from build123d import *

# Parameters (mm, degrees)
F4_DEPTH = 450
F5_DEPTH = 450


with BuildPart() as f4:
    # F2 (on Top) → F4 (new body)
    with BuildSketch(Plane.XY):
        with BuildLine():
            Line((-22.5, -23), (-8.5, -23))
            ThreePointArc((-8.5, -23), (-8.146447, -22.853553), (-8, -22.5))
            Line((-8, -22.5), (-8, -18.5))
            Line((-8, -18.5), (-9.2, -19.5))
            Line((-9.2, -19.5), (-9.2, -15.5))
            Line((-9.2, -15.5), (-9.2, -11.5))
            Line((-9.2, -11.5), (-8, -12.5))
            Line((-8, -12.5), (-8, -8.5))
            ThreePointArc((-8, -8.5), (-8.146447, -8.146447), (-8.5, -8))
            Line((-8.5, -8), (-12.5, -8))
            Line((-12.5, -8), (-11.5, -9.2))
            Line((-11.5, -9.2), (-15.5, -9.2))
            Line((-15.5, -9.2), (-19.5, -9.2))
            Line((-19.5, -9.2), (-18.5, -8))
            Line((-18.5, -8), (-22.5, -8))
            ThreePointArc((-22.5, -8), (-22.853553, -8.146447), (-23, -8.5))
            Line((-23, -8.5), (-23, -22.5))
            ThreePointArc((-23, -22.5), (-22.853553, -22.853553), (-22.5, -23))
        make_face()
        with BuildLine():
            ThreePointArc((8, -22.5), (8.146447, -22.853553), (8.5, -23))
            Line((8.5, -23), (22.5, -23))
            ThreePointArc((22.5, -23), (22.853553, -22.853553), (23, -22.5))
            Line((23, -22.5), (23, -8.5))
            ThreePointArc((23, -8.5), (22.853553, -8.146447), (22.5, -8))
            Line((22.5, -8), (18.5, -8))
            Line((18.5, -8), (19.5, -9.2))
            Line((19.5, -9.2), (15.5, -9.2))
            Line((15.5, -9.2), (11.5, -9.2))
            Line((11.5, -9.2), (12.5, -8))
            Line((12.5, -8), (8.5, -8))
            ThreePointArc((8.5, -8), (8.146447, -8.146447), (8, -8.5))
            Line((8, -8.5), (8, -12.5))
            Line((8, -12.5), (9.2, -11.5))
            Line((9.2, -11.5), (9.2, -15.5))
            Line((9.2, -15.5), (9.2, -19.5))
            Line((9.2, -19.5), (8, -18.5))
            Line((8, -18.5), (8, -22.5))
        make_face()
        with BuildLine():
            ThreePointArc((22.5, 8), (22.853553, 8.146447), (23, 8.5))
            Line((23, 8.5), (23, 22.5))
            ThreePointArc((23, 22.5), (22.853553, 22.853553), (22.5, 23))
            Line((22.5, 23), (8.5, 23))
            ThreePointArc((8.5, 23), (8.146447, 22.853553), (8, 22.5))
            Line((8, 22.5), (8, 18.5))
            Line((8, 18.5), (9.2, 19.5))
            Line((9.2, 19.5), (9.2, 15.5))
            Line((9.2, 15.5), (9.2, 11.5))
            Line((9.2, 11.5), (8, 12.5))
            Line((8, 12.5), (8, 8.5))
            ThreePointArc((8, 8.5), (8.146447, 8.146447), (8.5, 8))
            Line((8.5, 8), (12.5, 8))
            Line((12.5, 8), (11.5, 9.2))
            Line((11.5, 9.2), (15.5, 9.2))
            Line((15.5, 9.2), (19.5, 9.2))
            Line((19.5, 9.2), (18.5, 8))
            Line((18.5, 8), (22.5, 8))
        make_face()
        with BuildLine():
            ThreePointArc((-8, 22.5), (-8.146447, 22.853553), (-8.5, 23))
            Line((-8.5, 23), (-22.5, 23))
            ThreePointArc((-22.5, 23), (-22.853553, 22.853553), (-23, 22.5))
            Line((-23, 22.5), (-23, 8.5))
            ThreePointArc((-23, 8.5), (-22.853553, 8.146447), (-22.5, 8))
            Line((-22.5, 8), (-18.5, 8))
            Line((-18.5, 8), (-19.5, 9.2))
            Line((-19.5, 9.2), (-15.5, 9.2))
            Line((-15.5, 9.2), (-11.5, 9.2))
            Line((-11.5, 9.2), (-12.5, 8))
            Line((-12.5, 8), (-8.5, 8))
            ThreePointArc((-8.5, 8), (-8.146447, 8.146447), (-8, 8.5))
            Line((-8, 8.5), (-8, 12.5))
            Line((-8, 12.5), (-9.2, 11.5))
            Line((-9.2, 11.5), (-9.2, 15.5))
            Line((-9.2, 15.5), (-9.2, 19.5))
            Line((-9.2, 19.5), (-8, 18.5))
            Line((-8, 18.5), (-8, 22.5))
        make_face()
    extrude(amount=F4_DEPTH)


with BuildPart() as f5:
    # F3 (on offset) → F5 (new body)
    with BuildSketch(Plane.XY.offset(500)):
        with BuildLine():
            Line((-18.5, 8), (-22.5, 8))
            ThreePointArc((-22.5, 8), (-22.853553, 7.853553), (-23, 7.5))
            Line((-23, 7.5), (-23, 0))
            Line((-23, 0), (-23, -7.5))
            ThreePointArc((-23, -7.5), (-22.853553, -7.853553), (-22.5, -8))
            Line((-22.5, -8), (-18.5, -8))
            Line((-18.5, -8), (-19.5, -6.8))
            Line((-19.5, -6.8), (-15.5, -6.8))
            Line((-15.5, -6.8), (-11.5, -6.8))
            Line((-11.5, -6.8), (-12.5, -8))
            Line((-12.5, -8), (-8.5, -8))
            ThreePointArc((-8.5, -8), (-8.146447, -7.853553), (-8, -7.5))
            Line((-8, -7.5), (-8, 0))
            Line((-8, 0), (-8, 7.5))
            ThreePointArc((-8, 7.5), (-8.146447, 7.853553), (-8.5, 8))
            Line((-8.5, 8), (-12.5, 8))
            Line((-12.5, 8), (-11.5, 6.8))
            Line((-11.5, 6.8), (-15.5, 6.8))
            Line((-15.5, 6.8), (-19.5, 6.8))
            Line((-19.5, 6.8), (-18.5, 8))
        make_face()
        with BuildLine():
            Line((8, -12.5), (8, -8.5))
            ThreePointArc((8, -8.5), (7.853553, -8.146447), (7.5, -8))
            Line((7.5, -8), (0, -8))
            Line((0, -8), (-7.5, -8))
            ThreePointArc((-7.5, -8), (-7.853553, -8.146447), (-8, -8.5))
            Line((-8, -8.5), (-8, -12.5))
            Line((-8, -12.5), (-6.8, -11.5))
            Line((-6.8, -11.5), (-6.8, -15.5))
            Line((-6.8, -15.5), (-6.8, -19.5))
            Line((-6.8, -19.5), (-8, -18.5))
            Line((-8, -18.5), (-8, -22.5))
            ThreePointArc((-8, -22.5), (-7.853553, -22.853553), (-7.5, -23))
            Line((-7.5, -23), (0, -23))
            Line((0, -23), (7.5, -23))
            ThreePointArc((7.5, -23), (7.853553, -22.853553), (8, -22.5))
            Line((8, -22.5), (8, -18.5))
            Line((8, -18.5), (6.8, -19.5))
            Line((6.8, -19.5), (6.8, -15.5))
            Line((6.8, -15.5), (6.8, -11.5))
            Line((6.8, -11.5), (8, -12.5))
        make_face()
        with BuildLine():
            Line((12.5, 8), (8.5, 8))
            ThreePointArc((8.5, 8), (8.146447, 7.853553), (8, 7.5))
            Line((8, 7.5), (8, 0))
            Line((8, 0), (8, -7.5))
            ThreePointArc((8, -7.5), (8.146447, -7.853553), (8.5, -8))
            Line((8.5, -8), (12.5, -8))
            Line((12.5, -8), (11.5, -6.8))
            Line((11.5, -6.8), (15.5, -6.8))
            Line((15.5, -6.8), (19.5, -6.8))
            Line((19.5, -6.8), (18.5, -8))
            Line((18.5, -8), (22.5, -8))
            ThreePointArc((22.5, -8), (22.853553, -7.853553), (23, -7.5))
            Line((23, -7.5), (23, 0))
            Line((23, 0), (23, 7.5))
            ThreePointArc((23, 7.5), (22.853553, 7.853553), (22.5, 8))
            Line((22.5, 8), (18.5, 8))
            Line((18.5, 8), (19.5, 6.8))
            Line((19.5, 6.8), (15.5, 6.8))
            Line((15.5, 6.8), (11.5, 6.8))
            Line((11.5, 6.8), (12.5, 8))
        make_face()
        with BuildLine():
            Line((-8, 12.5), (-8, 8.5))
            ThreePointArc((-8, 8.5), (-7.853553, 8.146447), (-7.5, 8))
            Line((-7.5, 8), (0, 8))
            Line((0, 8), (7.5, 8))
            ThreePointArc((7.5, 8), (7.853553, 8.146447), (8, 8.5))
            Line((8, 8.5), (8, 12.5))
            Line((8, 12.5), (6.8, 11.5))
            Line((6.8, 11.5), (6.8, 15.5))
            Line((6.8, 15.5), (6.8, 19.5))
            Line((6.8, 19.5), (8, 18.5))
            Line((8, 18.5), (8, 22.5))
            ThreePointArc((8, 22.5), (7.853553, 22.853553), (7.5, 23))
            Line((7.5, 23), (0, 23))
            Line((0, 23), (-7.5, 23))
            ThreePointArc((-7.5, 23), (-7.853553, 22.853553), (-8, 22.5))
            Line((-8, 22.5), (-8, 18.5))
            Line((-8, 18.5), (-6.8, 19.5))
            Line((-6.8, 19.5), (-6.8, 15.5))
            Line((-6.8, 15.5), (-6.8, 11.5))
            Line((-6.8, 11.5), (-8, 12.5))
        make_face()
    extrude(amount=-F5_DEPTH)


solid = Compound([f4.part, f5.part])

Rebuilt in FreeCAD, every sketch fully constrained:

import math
import FreeCAD as App
import Part
import Sketcher

V = App.Vector
Q = App.Units.Quantity

doc = App.newDocument("Part")
body = doc.addObject("PartDesign::Body", "Body")
body.AllowCompound = True

sketch1 = doc.addObject("Sketcher::SketchObject", "Sketch")
body.addObject(sketch1)
sketch1.AttachmentSupport = (doc.XY_Plane, [""])
sketch1.MapMode = "FlatFace"
sketch1.addGeometry([
    Part.LineSegment(V(-22.5, -23, 0), V(-8.5, -23, 0)),
    Part.ArcOfCircle(Part.Circle(V(-8.5, -22.5, 0), V(0, 0, 1), 0.5), math.radians(-90), math.radians(0)),
    Part.LineSegment(V(-8, -22.5, 0), V(-8, -18.5, 0)),
    Part.LineSegment(V(-8, -18.5, 0), V(-9.2, -19.5, 0)),
    Part.LineSegment(V(-9.2, -19.5, 0), V(-9.2, -11.5, 0)),
    Part.LineSegment(V(-9.2, -11.5, 0), V(-8, -12.5, 0)),
    Part.LineSegment(V(-8, -12.5, 0), V(-8, -8.5, 0)),
    Part.ArcOfCircle(Part.Circle(V(-8.5, -8.5, 0), V(0, 0, 1), 0.5), math.radians(0), math.radians(90)),
    Part.LineSegment(V(-8.5, -8, 0), V(-12.5, -8, 0)),
    Part.LineSegment(V(-12.5, -8, 0), V(-11.5, -9.2, 0)),
    Part.LineSegment(V(-11.5, -9.2, 0), V(-19.5, -9.2, 0)),
    Part.LineSegment(V(-19.5, -9.2, 0), V(-18.5, -8, 0)),
    Part.LineSegment(V(-18.5, -8, 0), V(-22.5, -8, 0)),
    Part.ArcOfCircle(Part.Circle(V(-22.5, -8.5, 0), V(0, 0, 1), 0.5), math.radians(90), math.radians(180)),
    Part.LineSegment(V(-23, -8.5, 0), V(-23, -22.5, 0)),
    Part.ArcOfCircle(Part.Circle(V(-22.5, -22.5, 0), V(0, 0, 1), 0.5), math.radians(-180), math.radians(-90)),
    Part.ArcOfCircle(Part.Circle(V(8.5, -22.5, 0), V(0, 0, 1), 0.5), math.radians(-180), math.radians(-90)),
    Part.LineSegment(V(8.5, -23, 0), V(22.5, -23, 0)),
    Part.ArcOfCircle(Part.Circle(V(22.5, -22.5, 0), V(0, 0, 1), 0.5), math.radians(-90), math.radians(0)),
    Part.LineSegment(V(23, -22.5, 0), V(23, -8.5, 0)),
    Part.ArcOfCircle(Part.Circle(V(22.5, -8.5, 0), V(0, 0, 1), 0.5), math.radians(0), math.radians(90)),
    Part.LineSegment(V(22.5, -8, 0), V(18.5, -8, 0)),
    Part.LineSegment(V(18.5, -8, 0), V(19.5, -9.2, 0)),
    Part.LineSegment(V(19.5, -9.2, 0), V(11.5, -9.2, 0)),
    Part.LineSegment(V(11.5, -9.2, 0), V(12.5, -8, 0)),
    Part.LineSegment(V(12.5, -8, 0), V(8.5, -8, 0)),
    Part.ArcOfCircle(Part.Circle(V(8.5, -8.5, 0), V(0, 0, 1), 0.5), math.radians(90), math.radians(180)),
    Part.LineSegment(V(8, -8.5, 0), V(8, -12.5, 0)),
    Part.LineSegment(V(8, -12.5, 0), V(9.2, -11.5, 0)),
    Part.LineSegment(V(9.2, -11.5, 0), V(9.2, -19.5, 0)),
    Part.LineSegment(V(9.2, -19.5, 0), V(8, -18.5, 0)),
    Part.LineSegment(V(8, -18.5, 0), V(8, -22.5, 0)),
    Part.ArcOfCircle(Part.Circle(V(22.5, 8.5, 0), V(0, 0, 1), 0.5), math.radians(-90), math.radians(0)),
    Part.LineSegment(V(23, 8.5, 0), V(23, 22.5, 0)),
    Part.ArcOfCircle(Part.Circle(V(22.5, 22.5, 0), V(0, 0, 1), 0.5), math.radians(0), math.radians(90)),
    Part.LineSegment(V(22.5, 23, 0), V(8.5, 23, 0)),
    Part.ArcOfCircle(Part.Circle(V(8.5, 22.5, 0), V(0, 0, 1), 0.5), math.radians(90), math.radians(180)),
    Part.LineSegment(V(8, 22.5, 0), V(8, 18.5, 0)),
    Part.LineSegment(V(8, 18.5, 0), V(9.2, 19.5, 0)),
    Part.LineSegment(V(9.2, 19.5, 0), V(9.2, 11.5, 0)),
    Part.LineSegment(V(9.2, 11.5, 0), V(8, 12.5, 0)),
    Part.LineSegment(V(8, 12.5, 0), V(8, 8.5, 0)),
    Part.ArcOfCircle(Part.Circle(V(8.5, 8.5, 0), V(0, 0, 1), 0.5), math.radians(-180), math.radians(-90)),
    Part.LineSegment(V(8.5, 8, 0), V(12.5, 8, 0)),
    Part.LineSegment(V(12.5, 8, 0), V(11.5, 9.2, 0)),
    Part.LineSegment(V(11.5, 9.2, 0), V(19.5, 9.2, 0)),
    Part.LineSegment(V(19.5, 9.2, 0), V(18.5, 8, 0)),
    Part.LineSegment(V(18.5, 8, 0), V(22.5, 8, 0)),
    Part.ArcOfCircle(Part.Circle(V(-8.5, 22.5, 0), V(0, 0, 1), 0.5), math.radians(0), math.radians(90)),
    Part.LineSegment(V(-8.5, 23, 0), V(-22.5, 23, 0)),
    Part.ArcOfCircle(Part.Circle(V(-22.5, 22.5, 0), V(0, 0, 1), 0.5), math.radians(90), math.radians(180)),
    Part.LineSegment(V(-23, 22.5, 0), V(-23, 8.5, 0)),
    Part.ArcOfCircle(Part.Circle(V(-22.5, 8.5, 0), V(0, 0, 1), 0.5), math.radians(-180), math.radians(-90)),
    Part.LineSegment(V(-22.5, 8, 0), V(-18.5, 8, 0)),
    Part.LineSegment(V(-18.5, 8, 0), V(-19.5, 9.2, 0)),
    Part.LineSegment(V(-19.5, 9.2, 0), V(-11.5, 9.2, 0)),
    Part.LineSegment(V(-11.5, 9.2, 0), V(-12.5, 8, 0)),
    Part.LineSegment(V(-12.5, 8, 0), V(-8.5, 8, 0)),
    Part.ArcOfCircle(Part.Circle(V(-8.5, 8.5, 0), V(0, 0, 1), 0.5), math.radians(-90), math.radians(0)),
    Part.LineSegment(V(-8, 8.5, 0), V(-8, 12.5, 0)),
    Part.LineSegment(V(-8, 12.5, 0), V(-9.2, 11.5, 0)),
    Part.LineSegment(V(-9.2, 11.5, 0), V(-9.2, 19.5, 0)),
    Part.LineSegment(V(-9.2, 19.5, 0), V(-8, 18.5, 0)),
    Part.LineSegment(V(-8, 18.5, 0), V(-8, 22.5, 0)),
], False)
sketch1.addConstraint([
    Sketcher.Constraint("Coincident", 0, 2, 1, 1),
    Sketcher.Constraint("Coincident", 1, 2, 2, 1),
    Sketcher.Constraint("Coincident", 2, 2, 3, 1),
    Sketcher.Constraint("Coincident", 3, 2, 4, 1),
    Sketcher.Constraint("Coincident", 4, 2, 5, 1),
    Sketcher.Constraint("Coincident", 5, 2, 6, 1),
    Sketcher.Constraint("Coincident", 6, 2, 7, 1),
    Sketcher.Constraint("Coincident", 7, 2, 8, 1),
    Sketcher.Constraint("Coincident", 8, 2, 9, 1),
    Sketcher.Constraint("Coincident", 9, 2, 10, 1),
    Sketcher.Constraint("Coincident", 10, 2, 11, 1),
    Sketcher.Constraint("Coincident", 11, 2, 12, 1),
    Sketcher.Constraint("Coincident", 12, 2, 13, 1),
    Sketcher.Constraint("Coincident", 13, 2, 14, 1),
    Sketcher.Constraint("Coincident", 14, 2, 15, 1),
    Sketcher.Constraint("Coincident", 15, 2, 0, 1),
    Sketcher.Constraint("Coincident", 16, 2, 17, 1),
    Sketcher.Constraint("Coincident", 17, 2, 18, 1),
    Sketcher.Constraint("Coincident", 18, 2, 19, 1),
    Sketcher.Constraint("Coincident", 19, 2, 20, 1),
    Sketcher.Constraint("Coincident", 20, 2, 21, 1),
    Sketcher.Constraint("Coincident", 21, 2, 22, 1),
    Sketcher.Constraint("Coincident", 22, 2, 23, 1),
    Sketcher.Constraint("Coincident", 23, 2, 24, 1),
    Sketcher.Constraint("Coincident", 24, 2, 25, 1),
    Sketcher.Constraint("Coincident", 25, 2, 26, 1),
    Sketcher.Constraint("Coincident", 26, 2, 27, 1),
    Sketcher.Constraint("Coincident", 27, 2, 28, 1),
    Sketcher.Constraint("Coincident", 28, 2, 29, 1),
    Sketcher.Constraint("Coincident", 29, 2, 30, 1),
    Sketcher.Constraint("Coincident", 30, 2, 31, 1),
    Sketcher.Constraint("Coincident", 31, 2, 16, 1),
    Sketcher.Constraint("Coincident", 32, 2, 33, 1),
    Sketcher.Constraint("Coincident", 33, 2, 34, 1),
    Sketcher.Constraint("Coincident", 34, 2, 35, 1),
    Sketcher.Constraint("Coincident", 35, 2, 36, 1),
    Sketcher.Constraint("Coincident", 36, 2, 37, 1),
    Sketcher.Constraint("Coincident", 37, 2, 38, 1),
    Sketcher.Constraint("Coincident", 38, 2, 39, 1),
    Sketcher.Constraint("Coincident", 39, 2, 40, 1),
    Sketcher.Constraint("Coincident", 40, 2, 41, 1),
    Sketcher.Constraint("Coincident", 41, 2, 42, 1),
    Sketcher.Constraint("Coincident", 42, 2, 43, 1),
    Sketcher.Constraint("Coincident", 43, 2, 44, 1),
    Sketcher.Constraint("Coincident", 44, 2, 45, 1),
    Sketcher.Constraint("Coincident", 45, 2, 46, 1),
    Sketcher.Constraint("Coincident", 46, 2, 47, 1),
    Sketcher.Constraint("Coincident", 47, 2, 32, 1),
    Sketcher.Constraint("Coincident", 48, 2, 49, 1),
    Sketcher.Constraint("Coincident", 49, 2, 50, 1),
    Sketcher.Constraint("Coincident", 50, 2, 51, 1),
    Sketcher.Constraint("Coincident", 51, 2, 52, 1),
    Sketcher.Constraint("Coincident", 52, 2, 53, 1),
    Sketcher.Constraint("Coincident", 53, 2, 54, 1),
    Sketcher.Constraint("Coincident", 54, 2, 55, 1),
    Sketcher.Constraint("Coincident", 55, 2, 56, 1),
    Sketcher.Constraint("Coincident", 56, 2, 57, 1),
    Sketcher.Constraint("Coincident", 57, 2, 58, 1),
    Sketcher.Constraint("Coincident", 58, 2, 59, 1),
    Sketcher.Constraint("Coincident", 59, 2, 60, 1),
    Sketcher.Constraint("Coincident", 60, 2, 61, 1),
    Sketcher.Constraint("Coincident", 61, 2, 62, 1),
    Sketcher.Constraint("Coincident", 62, 2, 63, 1),
    Sketcher.Constraint("Coincident", 63, 2, 48, 1),
    Sketcher.Constraint("Horizontal", 0),
    Sketcher.Constraint("Vertical", 2),
    Sketcher.Constraint("Vertical", 4),
    Sketcher.Constraint("Vertical", 6),
    Sketcher.Constraint("Horizontal", 8),
    Sketcher.Constraint("Horizontal", 10),
    Sketcher.Constraint("Horizontal", 12),
    Sketcher.Constraint("Vertical", 14),
    Sketcher.Constraint("Horizontal", 17),
    Sketcher.Constraint("Vertical", 19),
    Sketcher.Constraint("Horizontal", 21),
    Sketcher.Constraint("Horizontal", 23),
    Sketcher.Constraint("Horizontal", 25),
    Sketcher.Constraint("Vertical", 27),
    Sketcher.Constraint("Vertical", 29),
    Sketcher.Constraint("Vertical", 31),
    Sketcher.Constraint("Vertical", 33),
    Sketcher.Constraint("Horizontal", 35),
    Sketcher.Constraint("Vertical", 37),
    Sketcher.Constraint("Vertical", 39),
    Sketcher.Constraint("Vertical", 41),
    Sketcher.Constraint("Horizontal", 43),
    Sketcher.Constraint("Horizontal", 45),
    Sketcher.Constraint("Horizontal", 47),
    Sketcher.Constraint("Horizontal", 49),
    Sketcher.Constraint("Vertical", 51),
    Sketcher.Constraint("Horizontal", 53),
    Sketcher.Constraint("Horizontal", 55),
    Sketcher.Constraint("Horizontal", 57),
    Sketcher.Constraint("Vertical", 59),
    Sketcher.Constraint("Vertical", 61),
    Sketcher.Constraint("Vertical", 63),
    Sketcher.Constraint("Equal", 1, 7),
    Sketcher.Constraint("Equal", 7, 13),
    Sketcher.Constraint("Equal", 13, 15),
    Sketcher.Constraint("Equal", 15, 16),
    Sketcher.Constraint("Equal", 16, 18),
    Sketcher.Constraint("Equal", 18, 20),
    Sketcher.Constraint("Equal", 20, 26),
    Sketcher.Constraint("Equal", 26, 32),
    Sketcher.Constraint("Equal", 32, 34),
    Sketcher.Constraint("Equal", 34, 36),
    Sketcher.Constraint("Equal", 36, 42),
    Sketcher.Constraint("Equal", 42, 48),
    Sketcher.Constraint("Equal", 48, 50),
    Sketcher.Constraint("Equal", 50, 52),
    Sketcher.Constraint("Equal", 52, 58),
    Sketcher.Constraint("Symmetric", 13, 3, 32, 3, -1, 1),
    Sketcher.Constraint("Symmetric", 1, 3, 36, 3, -1, 1),
    Sketcher.Constraint("Symmetric", 7, 3, 42, 3, -1, 1),
    Sketcher.Constraint("Symmetric", 16, 3, 48, 3, -1, 1),
    Sketcher.Constraint("Symmetric", 20, 3, 52, 3, -1, 1),
    Sketcher.Constraint("Symmetric", 26, 3, 58, 3, -1, 1),
    Sketcher.Constraint("Symmetric", 3, 2, 38, 2, -1, 1),
    Sketcher.Constraint("Symmetric", 9, 2, 44, 2, -1, 1),
    Sketcher.Constraint("Symmetric", 22, 2, 54, 2, -1, 1),
    Sketcher.Constraint("Symmetric", 28, 2, 60, 2, -1, 1),
    Sketcher.Constraint("Symmetric", 1, 3, 16, 3, -2),
    Sketcher.Constraint("Symmetric", 13, 3, 20, 3, -2),
    Sketcher.Constraint("Symmetric", 7, 3, 26, 3, -2),
    Sketcher.Constraint("Symmetric", 10, 2, 22, 2, -2),
    Sketcher.Constraint("Symmetric", 4, 2, 28, 2, -2),
    Sketcher.Constraint("Perpendicular", 3, 9),
    Sketcher.Constraint("Perpendicular", 5, 11),
    Sketcher.Constraint("Parallel", 9, 22),
    Sketcher.Constraint("Parallel", 11, 24),
    Sketcher.Constraint("Perpendicular", 22, 28),
    Sketcher.Constraint("Perpendicular", 24, 30),
    Sketcher.Constraint("Parallel", 28, 38),
    Sketcher.Constraint("Parallel", 30, 40),
    Sketcher.Constraint("Perpendicular", 38, 44),
    Sketcher.Constraint("Perpendicular", 40, 46),
    Sketcher.Constraint("Parallel", 44, 54),
    Sketcher.Constraint("Parallel", 46, 56),
    Sketcher.Constraint("Perpendicular", 54, 60),
    Sketcher.Constraint("Perpendicular", 56, 62),
    Sketcher.Constraint("Horizontal", 7, 3, 13, 3),
    Sketcher.Constraint("Horizontal", 18, 3, 1, 2),
    Sketcher.Constraint("Horizontal", 26, 3, 6, 2),
    Sketcher.Constraint("Horizontal", 6, 2, 13, 2),
    Sketcher.Constraint("Horizontal", 1, 2, 14, 2),
    Sketcher.Constraint("Horizontal", 14, 2, 18, 2),
    Sketcher.Constraint("Horizontal", 13, 2, 19, 2),
    Sketcher.Constraint("Horizontal", 19, 2, 26, 2),
    Sketcher.Constraint("Horizontal", 5, 2, 27, 2),
    Sketcher.Constraint("Horizontal", 3, 2, 29, 2),
    Sketcher.Constraint("Horizontal", 18, 2, 31, 2),
    Sketcher.Constraint("Horizontal", 58, 3, 32, 2),
    Sketcher.Constraint("Horizontal", 50, 3, 33, 2),
    Sketcher.Constraint("Horizontal", 33, 2, 36, 2),
    Sketcher.Constraint("Horizontal", 32, 2, 41, 2),
    Sketcher.Constraint("Horizontal", 36, 2, 50, 2),
    Sketcher.Constraint("Horizontal", 41, 2, 51, 2),
    Sketcher.Constraint("Horizontal", 51, 2, 58, 2),
    Sketcher.Constraint("Horizontal", 40, 2, 59, 2),
    Sketcher.Constraint("Horizontal", 38, 2, 61, 2),
    Sketcher.Constraint("Horizontal", 50, 2, 63, 2),
    Sketcher.Constraint("Vertical", 1, 3, 7, 3),
    Sketcher.Constraint("Vertical", 58, 3, 0, 2),
    Sketcher.Constraint("Vertical", 0, 2, 7, 2),
    Sketcher.Constraint("Vertical", 52, 3, 12, 2),
    Sketcher.Constraint("Vertical", 12, 2, 15, 2),
    Sketcher.Constraint("Vertical", 42, 3, 16, 2),
    Sketcher.Constraint("Vertical", 34, 3, 17, 2),
    Sketcher.Constraint("Vertical", 17, 2, 20, 2),
    Sketcher.Constraint("Vertical", 16, 2, 25, 2),
    Sketcher.Constraint("Vertical", 20, 2, 34, 2),
    Sketcher.Constraint("Vertical", 25, 2, 35, 2),
    Sketcher.Constraint("Vertical", 35, 2, 42, 2),
    Sketcher.Constraint("Vertical", 24, 2, 43, 2),
    Sketcher.Constraint("Vertical", 22, 2, 45, 2),
    Sketcher.Constraint("Vertical", 34, 2, 47, 2),
    Sketcher.Constraint("Vertical", 7, 2, 48, 2),
    Sketcher.Constraint("Vertical", 15, 2, 49, 2),
    Sketcher.Constraint("Vertical", 49, 2, 52, 2),
    Sketcher.Constraint("Vertical", 9, 2, 55, 2),
    Sketcher.Constraint("Vertical", 48, 2, 57, 2),
    Sketcher.Constraint("Equal", 8, 12),
    Sketcher.Constraint("Equal", 57, 2),
    Sketcher.Constraint("Equal", 55, 4),
    Sketcher.Constraint("Equal", 2, 6),
    Sketcher.Constraint("Equal", 49, 14),
    Sketcher.Constraint("Radius", 1, Q("0.500001 mm")),
    Sketcher.Constraint("DistanceX", 0, 1, 0, 2, Q("14 mm")),
    Sketcher.Constraint("DistanceX", 8, 2, 8, 1, Q("4 mm")),
    Sketcher.Constraint("DistanceX", 10, 2, 10, 1, Q("8 mm")),
    Sketcher.Constraint("DistanceY", 0, 2, -1, 1, Q("23 mm")),
    Sketcher.Constraint("DistanceX", 1, 2, -1, 1, Q("8 mm")),
    Sketcher.Constraint("DistanceX", 3, 2, -1, 1, Q("9.2 mm")),
])
pad1 = doc.addObject("PartDesign::Pad", "Pad")
body.addObject(pad1)
pad1.Profile = sketch1
pad1.Length = 450
body2 = doc.addObject("PartDesign::Body", "Body001")
body2.AllowCompound = True

sketch2 = doc.addObject("Sketcher::SketchObject", "Sketch001")
body2.addObject(sketch2)
sketch2.AttachmentSupport = (doc.getObject("XY_Plane001"), [""])
sketch2.MapMode = "FlatFace"
sketch2.AttachmentOffset = App.Placement(V(0, 0, 500), App.Rotation())
sketch2.addGeometry([
    Part.LineSegment(V(-18.5, 8, 0), V(-22.5, 8, 0)),
    Part.ArcOfCircle(Part.Circle(V(-22.5, 7.5, 0), V(0, 0, 1), 0.5), math.radians(90), math.radians(180)),
    Part.LineSegment(V(-23, 7.5, 0), V(-23, -7.5, 0)),
    Part.ArcOfCircle(Part.Circle(V(-22.5, -7.5, 0), V(0, 0, 1), 0.5), math.radians(-180), math.radians(-90)),
    Part.LineSegment(V(-22.5, -8, 0), V(-18.5, -8, 0)),
    Part.LineSegment(V(-18.5, -8, 0), V(-19.5, -6.8, 0)),
    Part.LineSegment(V(-19.5, -6.8, 0), V(-11.5, -6.8, 0)),
    Part.LineSegment(V(-11.5, -6.8, 0), V(-12.5, -8, 0)),
    Part.LineSegment(V(-12.5, -8, 0), V(-8.5, -8, 0)),
    Part.ArcOfCircle(Part.Circle(V(-8.5, -7.5, 0), V(0, 0, 1), 0.5), math.radians(-90), math.radians(0)),
    Part.LineSegment(V(-8, -7.5, 0), V(-8, 7.5, 0)),
    Part.ArcOfCircle(Part.Circle(V(-8.5, 7.5, 0), V(0, 0, 1), 0.5), math.radians(0), math.radians(90)),
    Part.LineSegment(V(-8.5, 8, 0), V(-12.5, 8, 0)),
    Part.LineSegment(V(-12.5, 8, 0), V(-11.5, 6.8, 0)),
    Part.LineSegment(V(-11.5, 6.8, 0), V(-19.5, 6.8, 0)),
    Part.LineSegment(V(-19.5, 6.8, 0), V(-18.5, 8, 0)),
    Part.LineSegment(V(8, -12.5, 0), V(8, -8.5, 0)),
    Part.ArcOfCircle(Part.Circle(V(7.5, -8.5, 0), V(0, 0, 1), 0.5), math.radians(0), math.radians(90)),
    Part.LineSegment(V(7.5, -8, 0), V(-7.5, -8, 0)),
    Part.ArcOfCircle(Part.Circle(V(-7.5, -8.5, 0), V(0, 0, 1), 0.5), math.radians(90), math.radians(180)),
    Part.LineSegment(V(-8, -8.5, 0), V(-8, -12.5, 0)),
    Part.LineSegment(V(-8, -12.5, 0), V(-6.8, -11.5, 0)),
    Part.LineSegment(V(-6.8, -11.5, 0), V(-6.8, -19.5, 0)),
    Part.LineSegment(V(-6.8, -19.5, 0), V(-8, -18.5, 0)),
    Part.LineSegment(V(-8, -18.5, 0), V(-8, -22.5, 0)),
    Part.ArcOfCircle(Part.Circle(V(-7.5, -22.5, 0), V(0, 0, 1), 0.5), math.radians(-180), math.radians(-90)),
    Part.LineSegment(V(-7.5, -23, 0), V(7.5, -23, 0)),
    Part.ArcOfCircle(Part.Circle(V(7.5, -22.5, 0), V(0, 0, 1), 0.5), math.radians(-90), math.radians(0)),
    Part.LineSegment(V(8, -22.5, 0), V(8, -18.5, 0)),
    Part.LineSegment(V(8, -18.5, 0), V(6.8, -19.5, 0)),
    Part.LineSegment(V(6.8, -19.5, 0), V(6.8, -11.5, 0)),
    Part.LineSegment(V(6.8, -11.5, 0), V(8, -12.5, 0)),
    Part.LineSegment(V(12.5, 8, 0), V(8.5, 8, 0)),
    Part.ArcOfCircle(Part.Circle(V(8.5, 7.5, 0), V(0, 0, 1), 0.5), math.radians(90), math.radians(180)),
    Part.LineSegment(V(8, 7.5, 0), V(8, -7.5, 0)),
    Part.ArcOfCircle(Part.Circle(V(8.5, -7.5, 0), V(0, 0, 1), 0.5), math.radians(-180), math.radians(-90)),
    Part.LineSegment(V(8.5, -8, 0), V(12.5, -8, 0)),
    Part.LineSegment(V(12.5, -8, 0), V(11.5, -6.8, 0)),
    Part.LineSegment(V(11.5, -6.8, 0), V(19.5, -6.8, 0)),
    Part.LineSegment(V(19.5, -6.8, 0), V(18.5, -8, 0)),
    Part.LineSegment(V(18.5, -8, 0), V(22.5, -8, 0)),
    Part.ArcOfCircle(Part.Circle(V(22.5, -7.5, 0), V(0, 0, 1), 0.5), math.radians(-90), math.radians(0)),
    Part.LineSegment(V(23, -7.5, 0), V(23, 7.5, 0)),
    Part.ArcOfCircle(Part.Circle(V(22.5, 7.5, 0), V(0, 0, 1), 0.5), math.radians(0), math.radians(90)),
    Part.LineSegment(V(22.5, 8, 0), V(18.5, 8, 0)),
    Part.LineSegment(V(18.5, 8, 0), V(19.5, 6.8, 0)),
    Part.LineSegment(V(19.5, 6.8, 0), V(11.5, 6.8, 0)),
    Part.LineSegment(V(11.5, 6.8, 0), V(12.5, 8, 0)),
    Part.LineSegment(V(-8, 12.5, 0), V(-8, 8.5, 0)),
    Part.ArcOfCircle(Part.Circle(V(-7.5, 8.5, 0), V(0, 0, 1), 0.5), math.radians(-180), math.radians(-90)),
    Part.LineSegment(V(-7.5, 8, 0), V(7.5, 8, 0)),
    Part.ArcOfCircle(Part.Circle(V(7.5, 8.5, 0), V(0, 0, 1), 0.5), math.radians(-90), math.radians(0)),
    Part.LineSegment(V(8, 8.5, 0), V(8, 12.5, 0)),
    Part.LineSegment(V(8, 12.5, 0), V(6.8, 11.5, 0)),
    Part.LineSegment(V(6.8, 11.5, 0), V(6.8, 19.5, 0)),
    Part.LineSegment(V(6.8, 19.5, 0), V(8, 18.5, 0)),
    Part.LineSegment(V(8, 18.5, 0), V(8, 22.5, 0)),
    Part.ArcOfCircle(Part.Circle(V(7.5, 22.5, 0), V(0, 0, 1), 0.5), math.radians(0), math.radians(90)),
    Part.LineSegment(V(7.5, 23, 0), V(-7.5, 23, 0)),
    Part.ArcOfCircle(Part.Circle(V(-7.5, 22.5, 0), V(0, 0, 1), 0.5), math.radians(90), math.radians(180)),
    Part.LineSegment(V(-8, 22.5, 0), V(-8, 18.5, 0)),
    Part.LineSegment(V(-8, 18.5, 0), V(-6.8, 19.5, 0)),
    Part.LineSegment(V(-6.8, 19.5, 0), V(-6.8, 11.5, 0)),
    Part.LineSegment(V(-6.8, 11.5, 0), V(-8, 12.5, 0)),
], False)
sketch2.addConstraint([
    Sketcher.Constraint("Coincident", 0, 2, 1, 1),
    Sketcher.Constraint("Coincident", 1, 2, 2, 1),
    Sketcher.Constraint("Coincident", 2, 2, 3, 1),
    Sketcher.Constraint("Coincident", 3, 2, 4, 1),
    Sketcher.Constraint("Coincident", 4, 2, 5, 1),
    Sketcher.Constraint("Coincident", 5, 2, 6, 1),
    Sketcher.Constraint("Coincident", 6, 2, 7, 1),
    Sketcher.Constraint("Coincident", 7, 2, 8, 1),
    Sketcher.Constraint("Coincident", 8, 2, 9, 1),
    Sketcher.Constraint("Coincident", 9, 2, 10, 1),
    Sketcher.Constraint("Coincident", 10, 2, 11, 1),
    Sketcher.Constraint("Coincident", 11, 2, 12, 1),
    Sketcher.Constraint("Coincident", 12, 2, 13, 1),
    Sketcher.Constraint("Coincident", 13, 2, 14, 1),
    Sketcher.Constraint("Coincident", 14, 2, 15, 1),
    Sketcher.Constraint("Coincident", 15, 2, 0, 1),
    Sketcher.Constraint("Coincident", 16, 2, 17, 1),
    Sketcher.Constraint("Coincident", 17, 2, 18, 1),
    Sketcher.Constraint("Coincident", 18, 2, 19, 1),
    Sketcher.Constraint("Coincident", 19, 2, 20, 1),
    Sketcher.Constraint("Coincident", 20, 2, 21, 1),
    Sketcher.Constraint("Coincident", 21, 2, 22, 1),
    Sketcher.Constraint("Coincident", 22, 2, 23, 1),
    Sketcher.Constraint("Coincident", 23, 2, 24, 1),
    Sketcher.Constraint("Coincident", 24, 2, 25, 1),
    Sketcher.Constraint("Coincident", 25, 2, 26, 1),
    Sketcher.Constraint("Coincident", 26, 2, 27, 1),
    Sketcher.Constraint("Coincident", 27, 2, 28, 1),
    Sketcher.Constraint("Coincident", 28, 2, 29, 1),
    Sketcher.Constraint("Coincident", 29, 2, 30, 1),
    Sketcher.Constraint("Coincident", 30, 2, 31, 1),
    Sketcher.Constraint("Coincident", 31, 2, 16, 1),
    Sketcher.Constraint("Coincident", 32, 2, 33, 1),
    Sketcher.Constraint("Coincident", 33, 2, 34, 1),
    Sketcher.Constraint("Coincident", 34, 2, 35, 1),
    Sketcher.Constraint("Coincident", 35, 2, 36, 1),
    Sketcher.Constraint("Coincident", 36, 2, 37, 1),
    Sketcher.Constraint("Coincident", 37, 2, 38, 1),
    Sketcher.Constraint("Coincident", 38, 2, 39, 1),
    Sketcher.Constraint("Coincident", 39, 2, 40, 1),
    Sketcher.Constraint("Coincident", 40, 2, 41, 1),
    Sketcher.Constraint("Coincident", 41, 2, 42, 1),
    Sketcher.Constraint("Coincident", 42, 2, 43, 1),
    Sketcher.Constraint("Coincident", 43, 2, 44, 1),
    Sketcher.Constraint("Coincident", 44, 2, 45, 1),
    Sketcher.Constraint("Coincident", 45, 2, 46, 1),
    Sketcher.Constraint("Coincident", 46, 2, 47, 1),
    Sketcher.Constraint("Coincident", 47, 2, 32, 1),
    Sketcher.Constraint("Coincident", 48, 2, 49, 1),
    Sketcher.Constraint("Coincident", 49, 2, 50, 1),
    Sketcher.Constraint("Coincident", 50, 2, 51, 1),
    Sketcher.Constraint("Coincident", 51, 2, 52, 1),
    Sketcher.Constraint("Coincident", 52, 2, 53, 1),
    Sketcher.Constraint("Coincident", 53, 2, 54, 1),
    Sketcher.Constraint("Coincident", 54, 2, 55, 1),
    Sketcher.Constraint("Coincident", 55, 2, 56, 1),
    Sketcher.Constraint("Coincident", 56, 2, 57, 1),
    Sketcher.Constraint("Coincident", 57, 2, 58, 1),
    Sketcher.Constraint("Coincident", 58, 2, 59, 1),
    Sketcher.Constraint("Coincident", 59, 2, 60, 1),
    Sketcher.Constraint("Coincident", 60, 2, 61, 1),
    Sketcher.Constraint("Coincident", 61, 2, 62, 1),
    Sketcher.Constraint("Coincident", 62, 2, 63, 1),
    Sketcher.Constraint("Coincident", 63, 2, 48, 1),
    Sketcher.Constraint("Horizontal", 0),
    Sketcher.Constraint("Vertical", 2),
    Sketcher.Constraint("Horizontal", 4),
    Sketcher.Constraint("Horizontal", 6),
    Sketcher.Constraint("Horizontal", 8),
    Sketcher.Constraint("Vertical", 10),
    Sketcher.Constraint("Horizontal", 12),
    Sketcher.Constraint("Horizontal", 14),
    Sketcher.Constraint("Vertical", 16),
    Sketcher.Constraint("Horizontal", 18),
    Sketcher.Constraint("Vertical", 20),
    Sketcher.Constraint("Vertical", 22),
    Sketcher.Constraint("Vertical", 24),
    Sketcher.Constraint("Horizontal", 26),
    Sketcher.Constraint("Vertical", 28),
    Sketcher.Constraint("Vertical", 30),
    Sketcher.Constraint("Horizontal", 32),
    Sketcher.Constraint("Vertical", 34),
    Sketcher.Constraint("Horizontal", 36),
    Sketcher.Constraint("Horizontal", 38),
    Sketcher.Constraint("Horizontal", 40),
    Sketcher.Constraint("Vertical", 42),
    Sketcher.Constraint("Horizontal", 44),
    Sketcher.Constraint("Horizontal", 46),
    Sketcher.Constraint("Vertical", 48),
    Sketcher.Constraint("Horizontal", 50),
    Sketcher.Constraint("Vertical", 52),
    Sketcher.Constraint("Vertical", 54),
    Sketcher.Constraint("Vertical", 56),
    Sketcher.Constraint("Horizontal", 58),
    Sketcher.Constraint("Vertical", 60),
    Sketcher.Constraint("Vertical", 62),
    Sketcher.Constraint("Equal", 1, 3),
    Sketcher.Constraint("Equal", 3, 9),
    Sketcher.Constraint("Equal", 9, 11),
    Sketcher.Constraint("Equal", 11, 17),
    Sketcher.Constraint("Equal", 17, 19),
    Sketcher.Constraint("Equal", 19, 25),
    Sketcher.Constraint("Equal", 25, 27),
    Sketcher.Constraint("Equal", 27, 33),
    Sketcher.Constraint("Equal", 33, 35),
    Sketcher.Constraint("Equal", 35, 41),
    Sketcher.Constraint("Equal", 41, 43),
    Sketcher.Constraint("Equal", 43, 49),
    Sketcher.Constraint("Equal", 49, 51),
    Sketcher.Constraint("Equal", 51, 57),
    Sketcher.Constraint("Equal", 57, 59),
    Sketcher.Constraint("Symmetric", 9, 3, 33, 3, -1, 1),
    Sketcher.Constraint("Symmetric", 1, 3, 41, 3, -1, 1),
    Sketcher.Constraint("Symmetric", 17, 3, 49, 3, -1, 1),
    Sketcher.Constraint("Symmetric", 25, 3, 57, 3, -1, 1),
    Sketcher.Constraint("Symmetric", 11, 2, 35, 2, -1, 1),
    Sketcher.Constraint("Symmetric", 13, 2, 37, 2, -1, 1),
    Sketcher.Constraint("Symmetric", 3, 2, 43, 2, -1, 1),
    Sketcher.Constraint("Symmetric", 5, 2, 45, 2, -1, 1),
    Sketcher.Constraint("Symmetric", 19, 2, 51, 2, -1, 1),
    Sketcher.Constraint("Symmetric", 21, 2, 53, 2, -1, 1),
    Sketcher.Constraint("Symmetric", 27, 2, 59, 2, -1, 1),
    Sketcher.Constraint("Symmetric", 29, 2, 61, 2, -1, 1),
    Sketcher.Constraint("Symmetric", 16, 2, 19, 2, -2),
    Sketcher.Constraint("Symmetric", 24, 2, 27, 2, -2),
    Sketcher.Constraint("Symmetric", 22, 2, 29, 2, -2),
    Sketcher.Constraint("Symmetric", 11, 2, 32, 2, -2),
    Sketcher.Constraint("Symmetric", 6, 2, 37, 2, -2),
    Sketcher.Constraint("Symmetric", 4, 2, 39, 2, -2),
    Sketcher.Constraint("Parallel", 5, 13),
    Sketcher.Constraint("Parallel", 7, 15),
    Sketcher.Constraint("Perpendicular", 13, 21),
    Sketcher.Constraint("Perpendicular", 15, 23),
    Sketcher.Constraint("Parallel", 21, 29),
    Sketcher.Constraint("Parallel", 23, 31),
    Sketcher.Constraint("Perpendicular", 29, 37),
    Sketcher.Constraint("Perpendicular", 31, 39),
    Sketcher.Constraint("Parallel", 37, 45),
    Sketcher.Constraint("Parallel", 39, 47),
    Sketcher.Constraint("Perpendicular", 45, 53),
    Sketcher.Constraint("Perpendicular", 47, 55),
    Sketcher.Constraint("Parallel", 53, 61),
    Sketcher.Constraint("Parallel", 55, 63),
    Sketcher.Constraint("Horizontal", 3, 3, 9, 3),
    Sketcher.Constraint("Horizontal", 43, 3, 1, 2),
    Sketcher.Constraint("Horizontal", 41, 3, 2, 2),
    Sketcher.Constraint("Horizontal", 2, 2, 9, 2),
    Sketcher.Constraint("Horizontal", 1, 2, 10, 2),
    Sketcher.Constraint("Horizontal", 19, 3, 16, 2),
    Sketcher.Constraint("Horizontal", 8, 2, 17, 2),
    Sketcher.Constraint("Horizontal", 27, 3, 24, 2),
    Sketcher.Constraint("Horizontal", 23, 2, 28, 2),
    Sketcher.Constraint("Horizontal", 21, 2, 30, 2),
    Sketcher.Constraint("Horizontal", 10, 2, 33, 2),
    Sketcher.Constraint("Horizontal", 9, 2, 34, 2),
    Sketcher.Constraint("Horizontal", 34, 2, 41, 2),
    Sketcher.Constraint("Horizontal", 33, 2, 42, 2),
    Sketcher.Constraint("Horizontal", 51, 3, 48, 2),
    Sketcher.Constraint("Horizontal", 59, 3, 56, 2),
    Sketcher.Constraint("Horizontal", 55, 2, 60, 2),
    Sketcher.Constraint("Horizontal", 53, 2, 62, 2),
    Sketcher.Constraint("Vertical", 19, 3, 25, 3),
    Sketcher.Constraint("Vertical", 3, 3, 0, 2),
    Sketcher.Constraint("Vertical", 0, 2, 3, 2),
    Sketcher.Constraint("Vertical", 11, 3, 8, 2),
    Sketcher.Constraint("Vertical", 8, 2, 11, 2),
    Sketcher.Constraint("Vertical", 5, 2, 14, 2),
    Sketcher.Constraint("Vertical", 57, 3, 17, 2),
    Sketcher.Constraint("Vertical", 59, 3, 18, 2),
    Sketcher.Constraint("Vertical", 10, 2, 19, 2),
    Sketcher.Constraint("Vertical", 18, 2, 25, 2),
    Sketcher.Constraint("Vertical", 17, 2, 26, 2),
    Sketcher.Constraint("Vertical", 43, 3, 40, 2),
    Sketcher.Constraint("Vertical", 37, 2, 46, 2),
    Sketcher.Constraint("Vertical", 25, 2, 49, 2),
    Sketcher.Constraint("Vertical", 26, 2, 50, 2),
    Sketcher.Constraint("Vertical", 50, 2, 57, 2),
    Sketcher.Constraint("Vertical", 49, 2, 58, 2),
    Sketcher.Constraint("Equal", 4, 8),
    Sketcher.Constraint("Equal", 58, 2),
    Sketcher.Constraint("Equal", 44, 16),
    Sketcher.Constraint("Equal", 46, 22),
    Sketcher.Constraint("Equal", 20, 24),
    Sketcher.Constraint("Equal", 15, 21),
    Sketcher.Constraint("Radius", 1, Q("0.500001 mm")),
    Sketcher.Constraint("DistanceX", 0, 2, 0, 1, Q("4 mm")),
    Sketcher.Constraint("DistanceX", 6, 1, 6, 2, Q("8 mm")),
    Sketcher.Constraint("DistanceX", 18, 2, 18, 1, Q("15 mm")),
    Sketcher.Constraint("DistanceX", 1, 2, -1, 1, Q("23 mm")),
    Sketcher.Constraint("DistanceY", 5, 2, -1, 1, Q("6.8 mm")),
])
pad2 = doc.addObject("PartDesign::Pad", "Pad001")
body2.addObject(pad2)
pad2.Profile = sketch2
pad2.Length = 450
pad2.Reversed = True

doc.recompute()
